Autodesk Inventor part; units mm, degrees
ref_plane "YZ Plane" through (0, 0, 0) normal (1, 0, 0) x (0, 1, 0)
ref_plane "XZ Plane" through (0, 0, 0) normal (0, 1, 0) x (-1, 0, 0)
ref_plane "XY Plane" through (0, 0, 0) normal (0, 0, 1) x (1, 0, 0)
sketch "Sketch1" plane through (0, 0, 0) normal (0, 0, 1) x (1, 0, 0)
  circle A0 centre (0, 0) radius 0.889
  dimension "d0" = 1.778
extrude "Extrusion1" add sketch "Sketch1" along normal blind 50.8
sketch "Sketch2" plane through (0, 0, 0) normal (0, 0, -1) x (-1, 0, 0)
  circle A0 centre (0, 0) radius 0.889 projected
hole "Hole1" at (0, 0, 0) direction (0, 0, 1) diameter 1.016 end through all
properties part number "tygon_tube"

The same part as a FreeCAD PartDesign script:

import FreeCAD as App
import Part
import Sketcher
from FreeCAD import Vector
Q = App.Units.Quantity

doc = App.newDocument("Part")
body = doc.addObject("PartDesign::Body", "Body")

sketch1 = body.newObject("Sketcher::SketchObject", "Sketch")
sketch1.AttachmentSupport = (doc.getObject("XY_Plane"), [""])
sketch1.MapMode = "FlatFace"
sketch1.addGeometry(Part.Circle(Vector(0, 0, 0), Vector(0, 0, 1), 0.9), False)
sketch1.addConstraint(Sketcher.Constraint("Coincident", 0, 3, -1, 1))
sketch1.addConstraint(Sketcher.Constraint("Diameter", 0, Q("0.07 in")))
pad1 = body.newObject("PartDesign::Pad", "Pad")
pad1.Profile = sketch1
pad1.Length = Q("2 in")

sketch2 = body.newObject("Sketcher::SketchObject", "Sketch001")
sketch2.AttachmentSupport = (doc.getObject("XY_Plane"), [""])
sketch2.MapMode = "FlatFace"
sketch2.addGeometry(Part.Circle(Vector(0, 0, 0), Vector(0, 0, 1), 0.5), False)
sketch2.addConstraint(Sketcher.Constraint("Coincident", 0, 3, -1, 1))
sketch2.addConstraint(Sketcher.Constraint("Diameter", 0, Q("0.04 in")))
doc.recompute()
hole = body.newObject("PartDesign::Hole", "Hole")
hole.Profile = sketch2
hole.ThreadType = "None"
hole.Diameter = Q("0.04 in")
hole.DepthType = "ThroughAll"
hole.Reversed = True

doc.recompute()
